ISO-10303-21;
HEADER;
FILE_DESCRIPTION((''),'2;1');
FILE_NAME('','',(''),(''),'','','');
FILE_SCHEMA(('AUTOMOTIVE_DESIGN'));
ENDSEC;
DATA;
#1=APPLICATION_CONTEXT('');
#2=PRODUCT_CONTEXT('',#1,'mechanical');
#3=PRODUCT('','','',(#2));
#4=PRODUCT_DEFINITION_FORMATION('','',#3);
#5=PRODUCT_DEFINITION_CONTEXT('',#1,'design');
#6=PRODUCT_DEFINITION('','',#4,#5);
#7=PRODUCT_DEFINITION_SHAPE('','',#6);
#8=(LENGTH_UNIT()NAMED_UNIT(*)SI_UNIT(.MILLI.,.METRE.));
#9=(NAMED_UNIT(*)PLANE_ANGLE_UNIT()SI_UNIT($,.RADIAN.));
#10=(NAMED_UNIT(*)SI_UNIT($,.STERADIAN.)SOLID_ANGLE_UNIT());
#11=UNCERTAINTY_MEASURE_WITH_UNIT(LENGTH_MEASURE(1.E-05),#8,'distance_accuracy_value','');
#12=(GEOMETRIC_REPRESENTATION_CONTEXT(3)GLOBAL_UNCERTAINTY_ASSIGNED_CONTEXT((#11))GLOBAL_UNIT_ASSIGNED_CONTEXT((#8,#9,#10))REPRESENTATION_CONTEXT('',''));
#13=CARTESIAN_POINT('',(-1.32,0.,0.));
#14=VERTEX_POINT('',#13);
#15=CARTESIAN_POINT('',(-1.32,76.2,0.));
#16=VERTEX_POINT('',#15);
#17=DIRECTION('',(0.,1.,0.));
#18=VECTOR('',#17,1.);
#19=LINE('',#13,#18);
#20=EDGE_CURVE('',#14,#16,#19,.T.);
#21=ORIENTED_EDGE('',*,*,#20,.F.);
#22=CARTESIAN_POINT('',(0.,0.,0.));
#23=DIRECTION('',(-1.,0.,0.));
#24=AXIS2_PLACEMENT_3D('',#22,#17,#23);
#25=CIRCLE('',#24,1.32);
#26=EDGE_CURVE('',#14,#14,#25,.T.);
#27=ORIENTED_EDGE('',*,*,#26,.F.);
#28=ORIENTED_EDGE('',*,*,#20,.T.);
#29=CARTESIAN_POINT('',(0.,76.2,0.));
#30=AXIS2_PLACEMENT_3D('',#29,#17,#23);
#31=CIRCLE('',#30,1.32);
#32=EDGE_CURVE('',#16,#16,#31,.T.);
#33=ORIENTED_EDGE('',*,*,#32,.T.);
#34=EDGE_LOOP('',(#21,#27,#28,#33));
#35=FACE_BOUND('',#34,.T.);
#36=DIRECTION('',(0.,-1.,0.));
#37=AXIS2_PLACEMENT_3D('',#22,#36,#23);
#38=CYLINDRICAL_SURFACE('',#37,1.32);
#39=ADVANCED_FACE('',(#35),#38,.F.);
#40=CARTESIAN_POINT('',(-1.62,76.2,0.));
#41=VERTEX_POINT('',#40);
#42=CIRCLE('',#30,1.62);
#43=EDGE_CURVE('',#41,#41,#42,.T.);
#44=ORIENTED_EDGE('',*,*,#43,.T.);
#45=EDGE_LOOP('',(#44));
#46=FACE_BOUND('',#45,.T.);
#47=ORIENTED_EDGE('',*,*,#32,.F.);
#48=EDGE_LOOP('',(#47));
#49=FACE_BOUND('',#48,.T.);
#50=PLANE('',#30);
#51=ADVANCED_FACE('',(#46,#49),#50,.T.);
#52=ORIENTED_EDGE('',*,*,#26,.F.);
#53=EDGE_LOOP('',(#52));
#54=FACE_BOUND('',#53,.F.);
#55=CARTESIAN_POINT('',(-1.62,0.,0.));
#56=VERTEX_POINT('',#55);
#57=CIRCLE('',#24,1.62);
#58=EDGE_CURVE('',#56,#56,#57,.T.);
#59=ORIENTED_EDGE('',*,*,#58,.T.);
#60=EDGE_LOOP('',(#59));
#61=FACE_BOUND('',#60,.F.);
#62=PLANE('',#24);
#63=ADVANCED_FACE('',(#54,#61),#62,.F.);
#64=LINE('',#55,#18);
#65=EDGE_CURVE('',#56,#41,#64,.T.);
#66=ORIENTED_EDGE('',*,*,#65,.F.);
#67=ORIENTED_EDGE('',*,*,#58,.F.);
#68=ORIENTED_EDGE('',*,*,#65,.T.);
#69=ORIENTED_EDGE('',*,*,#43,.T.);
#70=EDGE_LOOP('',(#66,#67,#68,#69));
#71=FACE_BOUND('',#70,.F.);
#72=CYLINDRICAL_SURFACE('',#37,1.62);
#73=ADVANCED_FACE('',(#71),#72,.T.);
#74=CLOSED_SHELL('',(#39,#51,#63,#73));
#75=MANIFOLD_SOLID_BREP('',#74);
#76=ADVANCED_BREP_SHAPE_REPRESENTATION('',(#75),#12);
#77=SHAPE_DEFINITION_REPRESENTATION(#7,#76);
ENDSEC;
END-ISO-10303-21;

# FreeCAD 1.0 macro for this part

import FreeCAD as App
import Part
import Sketcher

V = App.Vector
Q = App.Units.Quantity

doc = App.newDocument("Part")
params = doc.addObject("Spreadsheet::Sheet", "Params")
for row, (alias, value) in enumerate([
    ("pad1_length", "3 in"),
], start=1):
    params.set(f"A{row}", alias)
    params.set(f"B{row}", "=" + value)
    params.setAlias(f"B{row}", alias)

body = doc.addObject("PartDesign::Body", "Body")

# Sketch on XZ plane
sketch1 = doc.addObject("Sketcher::SketchObject", "Sketch")
body.addObject(sketch1)
sketch1.AttachmentSupport = (doc.XZ_Plane, [""])
sketch1.MapMode = "FlatFace"
sketch1.addGeometry(Part.Circle(V(0, 0, 0), V(0, 0, 1), 1.6), False)
sketch1.addGeometry(Part.Circle(V(0, 0, 0), V(0, 0, 1), 1.3), False)
sketch1.addConstraint(Sketcher.Constraint("Coincident", 0, 3, -1, 1))
sketch1.addConstraint(Sketcher.Constraint("Coincident", 1, 3, -1, 1))
sketch1.addConstraint(Sketcher.Constraint("Diameter", 0, Q("3.24 mm")))
sketch1.addConstraint(Sketcher.Constraint("Diameter", 1, Q("2.64 mm")))
pad1 = doc.addObject("PartDesign::Pad", "Pad")
body.addObject(pad1)
pad1.Profile = sketch1
pad1.setExpression("Length", "Params.pad1_length")
pad1.Reversed = True

doc.recompute()
